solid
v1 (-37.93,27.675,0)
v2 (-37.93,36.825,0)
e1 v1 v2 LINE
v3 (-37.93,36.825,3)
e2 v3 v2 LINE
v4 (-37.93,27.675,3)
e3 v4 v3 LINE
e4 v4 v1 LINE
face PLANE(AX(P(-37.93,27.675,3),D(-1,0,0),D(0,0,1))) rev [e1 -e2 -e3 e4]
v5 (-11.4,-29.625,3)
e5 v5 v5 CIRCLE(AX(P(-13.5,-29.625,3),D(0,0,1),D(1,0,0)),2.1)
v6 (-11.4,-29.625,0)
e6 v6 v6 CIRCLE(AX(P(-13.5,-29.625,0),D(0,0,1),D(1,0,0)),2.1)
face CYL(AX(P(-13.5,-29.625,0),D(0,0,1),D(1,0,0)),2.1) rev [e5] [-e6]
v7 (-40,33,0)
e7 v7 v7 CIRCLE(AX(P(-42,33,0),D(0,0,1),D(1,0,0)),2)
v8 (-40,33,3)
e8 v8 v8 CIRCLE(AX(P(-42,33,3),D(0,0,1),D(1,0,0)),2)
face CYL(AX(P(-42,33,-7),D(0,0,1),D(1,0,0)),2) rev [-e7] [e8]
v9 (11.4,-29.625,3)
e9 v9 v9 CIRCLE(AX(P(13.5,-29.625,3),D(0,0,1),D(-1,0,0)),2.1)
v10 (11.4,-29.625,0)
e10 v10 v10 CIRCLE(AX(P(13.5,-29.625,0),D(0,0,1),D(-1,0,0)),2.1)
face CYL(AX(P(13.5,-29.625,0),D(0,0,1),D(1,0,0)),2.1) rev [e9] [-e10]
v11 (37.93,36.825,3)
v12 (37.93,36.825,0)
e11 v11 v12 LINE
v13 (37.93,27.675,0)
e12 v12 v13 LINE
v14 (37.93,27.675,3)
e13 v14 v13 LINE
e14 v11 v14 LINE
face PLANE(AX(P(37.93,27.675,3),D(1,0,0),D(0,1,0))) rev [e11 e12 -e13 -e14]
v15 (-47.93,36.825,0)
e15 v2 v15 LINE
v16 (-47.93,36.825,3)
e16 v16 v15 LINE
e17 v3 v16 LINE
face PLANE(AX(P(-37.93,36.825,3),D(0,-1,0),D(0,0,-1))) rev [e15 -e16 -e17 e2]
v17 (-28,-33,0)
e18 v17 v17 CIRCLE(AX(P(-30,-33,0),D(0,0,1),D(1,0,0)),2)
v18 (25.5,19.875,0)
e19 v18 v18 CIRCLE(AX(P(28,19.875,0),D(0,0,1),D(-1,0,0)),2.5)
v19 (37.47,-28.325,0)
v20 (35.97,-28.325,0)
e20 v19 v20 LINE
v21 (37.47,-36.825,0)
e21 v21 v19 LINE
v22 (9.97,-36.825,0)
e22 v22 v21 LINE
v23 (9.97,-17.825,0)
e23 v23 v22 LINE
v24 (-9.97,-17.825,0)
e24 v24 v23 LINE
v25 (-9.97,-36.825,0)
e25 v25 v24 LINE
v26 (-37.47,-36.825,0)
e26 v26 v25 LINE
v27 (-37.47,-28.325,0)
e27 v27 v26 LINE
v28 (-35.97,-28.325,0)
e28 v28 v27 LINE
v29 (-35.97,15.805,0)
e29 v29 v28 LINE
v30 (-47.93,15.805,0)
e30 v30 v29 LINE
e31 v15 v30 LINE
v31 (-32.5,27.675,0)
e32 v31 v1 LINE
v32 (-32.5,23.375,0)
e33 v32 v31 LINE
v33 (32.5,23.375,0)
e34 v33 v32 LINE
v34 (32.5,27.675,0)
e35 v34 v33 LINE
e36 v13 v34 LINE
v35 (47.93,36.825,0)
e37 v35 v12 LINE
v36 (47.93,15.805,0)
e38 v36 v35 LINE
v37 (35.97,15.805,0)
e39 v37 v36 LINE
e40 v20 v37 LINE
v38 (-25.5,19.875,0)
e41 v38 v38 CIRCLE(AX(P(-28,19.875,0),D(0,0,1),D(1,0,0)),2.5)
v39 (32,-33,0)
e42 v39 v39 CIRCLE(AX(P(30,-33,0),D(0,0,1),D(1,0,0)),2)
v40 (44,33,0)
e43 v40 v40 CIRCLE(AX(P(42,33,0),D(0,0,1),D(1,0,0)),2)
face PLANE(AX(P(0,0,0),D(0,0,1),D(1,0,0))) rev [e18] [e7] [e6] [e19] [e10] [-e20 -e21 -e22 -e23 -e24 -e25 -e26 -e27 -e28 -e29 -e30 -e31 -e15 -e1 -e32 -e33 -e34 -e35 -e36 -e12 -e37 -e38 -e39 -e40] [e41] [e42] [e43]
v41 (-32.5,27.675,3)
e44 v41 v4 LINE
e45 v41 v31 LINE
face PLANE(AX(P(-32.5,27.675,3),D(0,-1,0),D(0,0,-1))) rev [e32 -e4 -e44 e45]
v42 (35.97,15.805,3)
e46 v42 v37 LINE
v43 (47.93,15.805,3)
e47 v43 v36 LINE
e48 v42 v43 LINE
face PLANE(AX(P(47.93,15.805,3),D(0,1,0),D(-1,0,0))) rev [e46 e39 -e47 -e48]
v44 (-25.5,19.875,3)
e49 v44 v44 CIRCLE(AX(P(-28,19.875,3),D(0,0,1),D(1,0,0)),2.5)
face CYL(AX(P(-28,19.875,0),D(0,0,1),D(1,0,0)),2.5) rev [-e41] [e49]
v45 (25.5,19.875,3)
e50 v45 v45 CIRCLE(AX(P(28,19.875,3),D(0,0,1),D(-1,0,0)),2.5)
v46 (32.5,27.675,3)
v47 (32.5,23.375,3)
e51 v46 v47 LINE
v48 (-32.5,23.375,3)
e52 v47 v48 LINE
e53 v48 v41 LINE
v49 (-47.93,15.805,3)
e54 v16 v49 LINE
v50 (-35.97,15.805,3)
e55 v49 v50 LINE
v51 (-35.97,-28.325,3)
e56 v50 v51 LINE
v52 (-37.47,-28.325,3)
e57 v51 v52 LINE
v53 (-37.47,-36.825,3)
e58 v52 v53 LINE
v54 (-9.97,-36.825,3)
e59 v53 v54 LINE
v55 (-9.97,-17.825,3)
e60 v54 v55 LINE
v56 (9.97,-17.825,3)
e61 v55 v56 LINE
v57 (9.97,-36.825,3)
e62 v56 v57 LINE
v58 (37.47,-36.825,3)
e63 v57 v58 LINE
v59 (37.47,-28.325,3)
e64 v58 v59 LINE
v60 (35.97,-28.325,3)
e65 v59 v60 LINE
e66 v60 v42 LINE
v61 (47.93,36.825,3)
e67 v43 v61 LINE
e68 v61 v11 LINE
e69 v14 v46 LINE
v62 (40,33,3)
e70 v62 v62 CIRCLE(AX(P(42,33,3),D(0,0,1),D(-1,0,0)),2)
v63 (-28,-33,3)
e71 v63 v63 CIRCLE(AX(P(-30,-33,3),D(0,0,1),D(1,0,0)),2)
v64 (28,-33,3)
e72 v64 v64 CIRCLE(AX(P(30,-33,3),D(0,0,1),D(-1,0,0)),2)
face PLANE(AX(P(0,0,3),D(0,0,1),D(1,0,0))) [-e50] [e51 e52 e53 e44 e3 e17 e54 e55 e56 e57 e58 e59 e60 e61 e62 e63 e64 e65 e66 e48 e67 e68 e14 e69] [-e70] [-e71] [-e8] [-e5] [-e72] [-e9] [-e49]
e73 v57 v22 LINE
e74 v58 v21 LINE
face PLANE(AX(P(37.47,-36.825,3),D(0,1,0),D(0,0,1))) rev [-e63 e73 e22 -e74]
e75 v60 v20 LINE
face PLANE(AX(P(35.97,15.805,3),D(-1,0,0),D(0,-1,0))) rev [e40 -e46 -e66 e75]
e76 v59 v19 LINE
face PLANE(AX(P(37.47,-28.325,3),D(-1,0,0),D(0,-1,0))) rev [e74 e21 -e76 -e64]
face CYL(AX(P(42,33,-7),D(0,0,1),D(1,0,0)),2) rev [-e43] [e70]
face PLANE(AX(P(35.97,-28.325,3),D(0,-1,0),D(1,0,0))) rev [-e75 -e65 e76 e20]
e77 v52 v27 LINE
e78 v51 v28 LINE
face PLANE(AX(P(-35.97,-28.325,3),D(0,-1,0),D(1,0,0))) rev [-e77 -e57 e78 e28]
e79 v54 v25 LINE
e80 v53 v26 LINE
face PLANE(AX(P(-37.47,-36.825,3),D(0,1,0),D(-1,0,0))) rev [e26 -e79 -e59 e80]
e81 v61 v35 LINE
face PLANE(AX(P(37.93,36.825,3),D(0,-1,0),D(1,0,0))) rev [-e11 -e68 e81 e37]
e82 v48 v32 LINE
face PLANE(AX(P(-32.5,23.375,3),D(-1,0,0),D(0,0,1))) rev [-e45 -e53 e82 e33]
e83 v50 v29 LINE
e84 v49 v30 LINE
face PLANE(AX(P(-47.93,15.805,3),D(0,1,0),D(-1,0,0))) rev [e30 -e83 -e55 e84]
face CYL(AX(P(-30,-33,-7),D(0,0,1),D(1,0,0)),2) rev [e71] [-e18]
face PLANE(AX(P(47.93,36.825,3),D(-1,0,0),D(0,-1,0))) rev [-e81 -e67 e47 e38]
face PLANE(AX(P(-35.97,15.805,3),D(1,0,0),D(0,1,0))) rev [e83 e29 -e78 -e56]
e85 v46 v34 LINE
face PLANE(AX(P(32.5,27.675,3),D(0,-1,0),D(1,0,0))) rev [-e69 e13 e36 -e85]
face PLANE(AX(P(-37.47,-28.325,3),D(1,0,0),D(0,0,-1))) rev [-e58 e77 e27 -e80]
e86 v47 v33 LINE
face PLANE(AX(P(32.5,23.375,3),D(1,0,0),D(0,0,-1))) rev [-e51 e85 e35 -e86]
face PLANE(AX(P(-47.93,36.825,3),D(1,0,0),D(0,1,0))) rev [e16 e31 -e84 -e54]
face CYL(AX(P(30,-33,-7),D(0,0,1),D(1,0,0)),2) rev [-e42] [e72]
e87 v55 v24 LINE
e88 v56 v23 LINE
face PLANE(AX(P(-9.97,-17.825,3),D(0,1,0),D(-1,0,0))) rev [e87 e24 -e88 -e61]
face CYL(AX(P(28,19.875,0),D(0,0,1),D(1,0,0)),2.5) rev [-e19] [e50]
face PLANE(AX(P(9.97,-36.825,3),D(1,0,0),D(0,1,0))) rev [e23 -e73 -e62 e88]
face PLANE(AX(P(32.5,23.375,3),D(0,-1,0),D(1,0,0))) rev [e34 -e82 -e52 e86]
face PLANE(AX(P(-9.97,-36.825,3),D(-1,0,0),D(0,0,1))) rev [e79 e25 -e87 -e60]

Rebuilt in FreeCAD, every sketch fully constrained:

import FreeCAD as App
import Part
import Sketcher

V = App.Vector

doc = App.newDocument("Part")
params = doc.addObject("Spreadsheet::Sheet", "Params")
for row, (alias, value) in enumerate([
    ("sketch1_width", "65 mm"),
    ("sketch1_width2", "10 mm"),
    ("sketch1_height", "19 mm"),
    ("sketch1_width3", "1.5 mm"),
    ("sketch1_width4", "27.5 mm"),
    ("pad1_length", "3 mm"),
    ("sketch2_diameter", "5 mm"),
    ("sketch2_diameter2", "4.2 mm"),
    ("sketch3_diameter", "4 mm"),
    ("pocket2_length", "10 mm"),
], start=1):
    params.set(f"A{row}", alias)
    params.set(f"B{row}", "=" + value)
    params.setAlias(f"B{row}", alias)

body = doc.addObject("PartDesign::Body", "Body")

# Sketch on XY plane
sketch1 = doc.addObject("Sketcher::SketchObject", "Sketch")
body.addObject(sketch1)
sketch1.AttachmentSupport = (doc.XY_Plane, [""])
sketch1.MapMode = "FlatFace"
sketch1.addGeometry(Part.LineSegment(V(32.5, 23.4, 0), V(-32.5, 23.4, 0)), False)
sketch1.addGeometry(Part.LineSegment(V(-32.5, 23.4, 0), V(-32.5, 27.7, 0)), False)
sketch1.addGeometry(Part.LineSegment(V(-32.5, 27.7, 0), V(-37.9, 27.7, 0)), False)
sketch1.addGeometry(Part.LineSegment(V(-37.9, 27.7, 0), V(-37.9, 36.8, 0)), False)
sketch1.addGeometry(Part.LineSegment(V(-37.9, 36.8, 0), V(-47.9, 36.8, 0)), False)
sketch1.addGeometry(Part.LineSegment(V(-47.9, 36.8, 0), V(-47.9, 15.8, 0)), False)
sketch1.addGeometry(Part.LineSegment(V(-47.9, 15.8, 0), V(-36, 15.8, 0)), False)
sketch1.addGeometry(Part.LineSegment(V(-36, 15.8, 0), V(-36, -28.3, 0)), False)
sketch1.addGeometry(Part.LineSegment(V(-36, -28.3, 0), V(-37.5, -28.3, 0)), False)
sketch1.addGeometry(Part.LineSegment(V(-37.5, -28.3, 0), V(-37.5, -36.8, 0)), False)
sketch1.addGeometry(Part.LineSegment(V(-37.5, -36.8, 0), V(-10, -36.8, 0)), False)
sketch1.addGeometry(Part.LineSegment(V(-10, -36.8, 0), V(-10, -17.8, 0)), False)
sketch1.addGeometry(Part.LineSegment(V(-10, -17.8, 0), V(10, -17.8, 0)), False)
sketch1.addGeometry(Part.LineSegment(V(10, -17.8, 0), V(10, -36.8, 0)), False)
sketch1.addGeometry(Part.LineSegment(V(10, -36.8, 0), V(37.5, -36.8, 0)), False)
sketch1.addGeometry(Part.LineSegment(V(37.5, -36.8, 0), V(37.5, -28.3, 0)), False)
sketch1.addGeometry(Part.LineSegment(V(37.5, -28.3, 0), V(36, -28.3, 0)), False)
sketch1.addGeometry(Part.LineSegment(V(36, -28.3, 0), V(36, 15.8, 0)), False)
sketch1.addGeometry(Part.LineSegment(V(36, 15.8, 0), V(47.9, 15.8, 0)), False)
sketch1.addGeometry(Part.LineSegment(V(47.9, 15.8, 0), V(47.9, 36.8, 0)), False)
sketch1.addGeometry(Part.LineSegment(V(47.9, 36.8, 0), V(37.9, 36.8, 0)), False)
sketch1.addGeometry(Part.LineSegment(V(37.9, 36.8, 0), V(37.9, 27.7, 0)), False)
sketch1.addGeometry(Part.LineSegment(V(37.9, 27.7, 0), V(32.5, 27.7, 0)), False)
sketch1.addGeometry(Part.LineSegment(V(32.5, 27.7, 0), V(32.5, 23.4, 0)), False)
sketch1.addConstraint(Sketcher.Constraint("Coincident", 0, 2, 1, 1))
sketch1.addConstraint(Sketcher.Constraint("Coincident", 1, 2, 2, 1))
sketch1.addConstraint(Sketcher.Constraint("Coincident", 2, 2, 3, 1))
sketch1.addConstraint(Sketcher.Constraint("Coincident", 3, 2, 4, 1))
sketch1.addConstraint(Sketcher.Constraint("Coincident", 4, 2, 5, 1))
sketch1.addConstraint(Sketcher.Constraint("Coincident", 5, 2, 6, 1))
sketch1.addConstraint(Sketcher.Constraint("Coincident", 6, 2, 7, 1))
sketch1.addConstraint(Sketcher.Constraint("Coincident", 7, 2, 8, 1))
sketch1.addConstraint(Sketcher.Constraint("Coincident", 8, 2, 9, 1))
sketch1.addConstraint(Sketcher.Constraint("Coincident", 9, 2, 10, 1))
sketch1.addConstraint(Sketcher.Constraint("Coincident", 10, 2, 11, 1))
sketch1.addConstraint(Sketcher.Constraint("Coincident", 11, 2, 12, 1))
sketch1.addConstraint(Sketcher.Constraint("Coincident", 12, 2, 13, 1))
sketch1.addConstraint(Sketcher.Constraint("Coincident", 13, 2, 14, 1))
sketch1.addConstraint(Sketcher.Constraint("Coincident", 14, 2, 15, 1))
sketch1.addConstraint(Sketcher.Constraint("Coincident", 15, 2, 16, 1))
sketch1.addConstraint(Sketcher.Constraint("Coincident", 16, 2, 17, 1))
sketch1.addConstraint(Sketcher.Constraint("Coincident", 17, 2, 18, 1))
sketch1.addConstraint(Sketcher.Constraint("Coincident", 18, 2, 19, 1))
sketch1.addConstraint(Sketcher.Constraint("Coincident", 19, 2, 20, 1))
sketch1.addConstraint(Sketcher.Constraint("Coincident", 20, 2, 21, 1))
sketch1.addConstraint(Sketcher.Constraint("Coincident", 21, 2, 22, 1))
sketch1.addConstraint(Sketcher.Constraint("Coincident", 22, 2, 23, 1))
sketch1.addConstraint(Sketcher.Constraint("Coincident", 23, 2, 0, 1))
sketch1.addConstraint(Sketcher.Constraint("Horizontal", 0))
sketch1.addConstraint(Sketcher.Constraint("Vertical", 1))
sketch1.addConstraint(Sketcher.Constraint("Horizontal", 2))
sketch1.addConstraint(Sketcher.Constraint("Vertical", 3))
sketch1.addConstraint(Sketcher.Constraint("Horizontal", 4))
sketch1.addConstraint(Sketcher.Constraint("Vertical", 5))
sketch1.addConstraint(Sketcher.Constraint("Horizontal", 6))
sketch1.addConstraint(Sketcher.Constraint("Vertical", 7))
sketch1.addConstraint(Sketcher.Constraint("Horizontal", 8))
sketch1.addConstraint(Sketcher.Constraint("Vertical", 9))
sketch1.addConstraint(Sketcher.Constraint("Horizontal", 10))
sketch1.addConstraint(Sketcher.Constraint("Vertical", 11))
sketch1.addConstraint(Sketcher.Constraint("Horizontal", 12))
sketch1.addConstraint(Sketcher.Constraint("Vertical", 13))
sketch1.addConstraint(Sketcher.Constraint("Horizontal", 14))
sketch1.addConstraint(Sketcher.Constraint("Vertical", 15))
sketch1.addConstraint(Sketcher.Constraint("Horizontal", 16))
sketch1.addConstraint(Sketcher.Constraint("Vertical", 17))
sketch1.addConstraint(Sketcher.Constraint("Horizontal", 18))
sketch1.addConstraint(Sketcher.Constraint("Vertical", 19))
sketch1.addConstraint(Sketcher.Constraint("Horizontal", 20))
sketch1.addConstraint(Sketcher.Constraint("Vertical", 21))
sketch1.addConstraint(Sketcher.Constraint("Horizontal", 22))
sketch1.addConstraint(Sketcher.Constraint("Vertical", 23))
sketch1.addConstraint(Sketcher.Constraint("Symmetric", 10, 2, 13, 2, -2))
sketch1.addConstraint(Sketcher.Constraint("Symmetric", 8, 2, 15, 2, -2))
sketch1.addConstraint(Sketcher.Constraint("Symmetric", 6, 2, 17, 2, -2))
sketch1.addConstraint(Sketcher.Constraint("Symmetric", 4, 2, 19, 2, -2))
sketch1.addConstraint(Sketcher.Constraint("Symmetric", 2, 2, 21, 2, -2))
sketch1.addConstraint(Sketcher.Constraint("Equal", 2, 22))
sketch1.addConstraint(Sketcher.Constraint("DistanceX", 0, 2, 0, 1, 65.0))
sketch1.addConstraint(Sketcher.Constraint("DistanceX", 4, 2, 4, 1, 10.0))
sketch1.addConstraint(Sketcher.Constraint("DistanceY", 11, 1, 11, 2, 19.0))
sketch1.addConstraint(Sketcher.Constraint("DistanceX", 8, 2, 8, 1, 1.5))
sketch1.addConstraint(Sketcher.Constraint("DistanceX", 10, 1, 10, 2, 27.5))
sketch1.addConstraint(Sketcher.Constraint("DistanceY", 1, 1, 1, 2, 4.3))
sketch1.addConstraint(Sketcher.Constraint("DistanceY", 9, 2, 9, 1, 8.5))
sketch1.addConstraint(Sketcher.Constraint("DistanceY", 7, 2, 2, 2, 56.0))
sketch1.addConstraint(Sketcher.Constraint("DistanceX", 2, 2, 2, 1, 5.43))
sketch1.addConstraint(Sketcher.Constraint("DistanceX", 6, 1, 6, 2, 11.96))
sketch1.addConstraint(Sketcher.Constraint("DistanceY", 3, 1, 3, 2, 9.15))
sketch1.addConstraint(Sketcher.Constraint("DistanceY", 5, 2, 5, 1, 21.02))
sketch1.addConstraint(Sketcher.Constraint("DistanceY", -1, 1, 0, 2, 23.375))
sketch1.setExpression("Constraints[54]", "Params.sketch1_width")
sketch1.setExpression("Constraints[55]", "Params.sketch1_width2")
sketch1.setExpression("Constraints[56]", "Params.sketch1_height")
sketch1.setExpression("Constraints[57]", "Params.sketch1_width3")
sketch1.setExpression("Constraints[58]", "Params.sketch1_width4")
pad1 = doc.addObject("PartDesign::Pad", "Pad")
body.addObject(pad1)
pad1.Profile = sketch1
pad1.setExpression("Length", "Params.pad1_length")

# Sketch on XY plane
sketch2 = doc.addObject("Sketcher::SketchObject", "Sketch001")
body.addObject(sketch2)
sketch2.AttachmentSupport = (doc.XY_Plane, [""])
sketch2.MapMode = "FlatFace"
sketch2.AttachmentOffset = App.Placement(V(0, 0, 3), App.Rotation())
sketch2.addGeometry(Part.Circle(V(-28, 19.9, 0), V(0, 0, 1), 2.5), False)
sketch2.addGeometry(Part.Circle(V(-13.5, -29.6, 0), V(0, 0, 1), 2.1), False)
sketch2.addGeometry(Part.Circle(V(13.5, -29.6, 0), V(0, 0, 1), 2.1), False)
sketch2.addGeometry(Part.Circle(V(28, 19.9, 0), V(0, 0, 1), 2.5), False)
sketch2.addConstraint(Sketcher.Constraint("Equal", 1, 2))
sketch2.addConstraint(Sketcher.Constraint("Equal", 0, 3))
sketch2.addConstraint(Sketcher.Constraint("Symmetric", 1, 3, 2, 3, -2))
sketch2.addConstraint(Sketcher.Constraint("Symmetric", 0, 3, 3, 3, -2))
sketch2.addConstraint(Sketcher.Constraint("Diameter", 0, 5.0))
sketch2.addConstraint(Sketcher.Constraint("Diameter", 1, 4.2))
sketch2.addConstraint(Sketcher.Constraint("DistanceX", 0, 3, -1, 1, 28.0))
sketch2.addConstraint(Sketcher.Constraint("DistanceX", 1, 3, 2, 3, 27.0))
sketch2.addConstraint(Sketcher.Constraint("DistanceY", 1, 3, 0, 3, 49.5))
sketch2.addConstraint(Sketcher.Constraint("DistanceY", -1, 1, 0, 3, 19.875))
sketch2.setExpression("Constraints[4]", "Params.sketch2_diameter")
sketch2.setExpression("Constraints[5]", "Params.sketch2_diameter2")
pocket1 = doc.addObject("PartDesign::Pocket", "Pocket")
body.addObject(pocket1)
pocket1.Profile = sketch2
pocket1.Type = "ThroughAll"

# Sketch on XY plane
sketch3 = doc.addObject("Sketcher::SketchObject", "Sketch002")
body.addObject(sketch3)
sketch3.AttachmentSupport = (doc.XY_Plane, [""])
sketch3.MapMode = "FlatFace"
sketch3.AttachmentOffset = App.Placement(V(0, 0, 3), App.Rotation())
sketch3.addGeometry(Part.Circle(V(-42, 33, 0), V(0, 0, 1), 2), False)
sketch3.addGeometry(Part.Circle(V(-30, -33, 0), V(0, 0, 1), 2), False)
sketch3.addGeometry(Part.Circle(V(30, -33, 0), V(0, 0, 1), 2), False)
sketch3.addGeometry(Part.Circle(V(42, 33, 0), V(0, 0, 1), 2), False)
sketch3.addConstraint(Sketcher.Constraint("Equal", 0, 1))
sketch3.addConstraint(Sketcher.Constraint("Equal", 1, 2))
sketch3.addConstraint(Sketcher.Constraint("Equal", 2, 3))
sketch3.addConstraint(Sketcher.Constraint("Symmetric", 1, 3, 2, 3, -2))
sketch3.addConstraint(Sketcher.Constraint("Symmetric", 0, 3, 3, 3, -2))
sketch3.addConstraint(Sketcher.Constraint("Diameter", 0, 4.0))
sketch3.addConstraint(Sketcher.Constraint("DistanceX", 0, 3, -1, 1, 42.0))
sketch3.addConstraint(Sketcher.Constraint("DistanceY", -1, 1, 0, 3, 33.0))
sketch3.addConstraint(Sketcher.Constraint("DistanceX", 1, 3, -1, 1, 30.0))
sketch3.addConstraint(Sketcher.Constraint("DistanceY", 1, 3, -1, 1, 33.0))
sketch3.setExpression("Constraints[5]", "Params.sketch3_diameter")
pocket2 = doc.addObject("PartDesign::Pocket", "Pocket001")
body.addObject(pocket2)
pocket2.Profile = sketch3
pocket2.setExpression("Length", "Params.pocket2_length")

doc.recompute()
